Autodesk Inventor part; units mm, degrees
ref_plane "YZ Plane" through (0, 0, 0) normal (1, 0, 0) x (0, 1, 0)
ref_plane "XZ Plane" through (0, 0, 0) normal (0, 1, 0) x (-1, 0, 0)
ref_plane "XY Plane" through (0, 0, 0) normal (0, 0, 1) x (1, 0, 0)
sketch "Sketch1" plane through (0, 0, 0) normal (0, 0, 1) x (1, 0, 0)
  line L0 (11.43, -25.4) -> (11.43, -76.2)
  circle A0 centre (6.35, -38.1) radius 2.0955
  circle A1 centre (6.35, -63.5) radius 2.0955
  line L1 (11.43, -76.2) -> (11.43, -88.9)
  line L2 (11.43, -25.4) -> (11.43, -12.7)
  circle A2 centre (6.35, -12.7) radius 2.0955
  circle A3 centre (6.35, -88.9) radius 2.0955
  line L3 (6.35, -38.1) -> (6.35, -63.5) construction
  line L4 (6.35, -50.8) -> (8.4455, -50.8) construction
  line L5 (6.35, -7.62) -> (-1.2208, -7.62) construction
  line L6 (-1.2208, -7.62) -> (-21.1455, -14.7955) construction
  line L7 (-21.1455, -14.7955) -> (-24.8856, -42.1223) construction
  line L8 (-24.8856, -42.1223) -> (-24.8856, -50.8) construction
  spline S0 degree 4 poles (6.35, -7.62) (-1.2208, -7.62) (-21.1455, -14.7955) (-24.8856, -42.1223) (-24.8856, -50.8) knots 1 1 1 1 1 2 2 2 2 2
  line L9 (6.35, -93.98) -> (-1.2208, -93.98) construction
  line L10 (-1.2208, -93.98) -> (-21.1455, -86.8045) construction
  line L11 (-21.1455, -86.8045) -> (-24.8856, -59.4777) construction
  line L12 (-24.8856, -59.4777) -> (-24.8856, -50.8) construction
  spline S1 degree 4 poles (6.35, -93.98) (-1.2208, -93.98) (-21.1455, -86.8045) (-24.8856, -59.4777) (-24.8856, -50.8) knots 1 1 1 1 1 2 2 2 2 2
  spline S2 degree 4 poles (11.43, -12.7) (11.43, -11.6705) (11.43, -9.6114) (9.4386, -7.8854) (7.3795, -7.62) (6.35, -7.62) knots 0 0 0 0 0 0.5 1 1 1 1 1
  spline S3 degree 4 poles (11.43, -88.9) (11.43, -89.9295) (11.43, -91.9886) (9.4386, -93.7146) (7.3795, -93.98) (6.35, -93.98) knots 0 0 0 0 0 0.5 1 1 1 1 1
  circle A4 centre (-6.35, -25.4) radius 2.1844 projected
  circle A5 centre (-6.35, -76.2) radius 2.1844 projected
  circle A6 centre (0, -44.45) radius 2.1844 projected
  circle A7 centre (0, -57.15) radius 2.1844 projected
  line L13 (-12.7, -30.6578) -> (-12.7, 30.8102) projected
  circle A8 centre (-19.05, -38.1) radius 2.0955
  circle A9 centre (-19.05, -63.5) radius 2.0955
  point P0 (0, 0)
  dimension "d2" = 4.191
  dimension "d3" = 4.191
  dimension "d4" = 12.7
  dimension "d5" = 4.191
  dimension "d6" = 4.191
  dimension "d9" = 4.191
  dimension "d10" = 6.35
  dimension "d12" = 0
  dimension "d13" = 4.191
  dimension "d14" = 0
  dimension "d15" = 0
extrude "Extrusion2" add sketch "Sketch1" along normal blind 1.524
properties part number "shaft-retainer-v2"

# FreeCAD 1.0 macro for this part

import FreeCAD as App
import Part
import Sketcher
Q = App.Units.Quantity

doc = App.newDocument("Part")
params = doc.addObject("Spreadsheet::Sheet", "Params")
for row, (alias, value) in enumerate([
    ("sketch1_diameter", "0.165 in"),
    ("sketch1_diameter2", "0.172 in"),
    ("pad1_length", "0.06 in"),
], start=1):
    params.set(f"A{row}", alias)
    params.set(f"B{row}", "=" + value)
    params.setAlias(f"B{row}", alias)

body = doc.addObject("PartDesign::Body", "Body")

# Sketch on XY plane
sketch1 = body.newObject("Sketcher::SketchObject", "Sketch")
sketch1.AttachmentSupport = (doc.getObject("XY_Plane"), [""])
sketch1.MapMode = "FlatFace"
sketch1.addGeometry(Part.LineSegment(App.Vector(11.43, -88.9, 0), App.Vector(11.43, -12.7, 0)), False)
sketch1.addGeometry(Part.BSplineCurve([App.Vector(11.43, -12.7, 0), App.Vector(11.43, -11.6705, 0), App.Vector(11.43, -9.6114, 0), App.Vector(9.4386, -7.8854, 0), App.Vector(7.3795, -7.62, 0), App.Vector(6.35, -7.62, 0)], [5, 1, 5], [0, 0.5, 1], False, 4, [1, 1, 1, 1, 1, 1], False), False)
sketch1.addGeometry(Part.BSplineCurve([App.Vector(6.35, -7.62, 0), App.Vector(3.09495, -7.62, 0), App.Vector(-2.443782, -8.946429, 0), App.Vector(-7.998012, -12.630578, 0), App.Vector(-12.7, -17.934473, 0)], [5, 5], [1, 1.429947928], False, 4, [1, 1, 1, 1, 1], False), False)
sketch1.addGeometry(Part.BSplineCurve([App.Vector(-12.7, -17.934473, 0), App.Vector(-18.934192, -24.96671, 0), App.Vector(-23.670219, -34.846319, 0), App.Vector(-24.8856, -45.853259, 0), App.Vector(-24.8856, -50.8, 0)], [5, 5], [1.429947928, 2], False, 4, [1, 1, 1, 1, 1], False), False)
sketch1.addGeometry(Part.BSplineCurve([App.Vector(6.35, -93.98, 0), App.Vector(-1.2208, -93.98, 0), App.Vector(-21.1455, -86.8045, 0), App.Vector(-24.8856, -59.4777, 0), App.Vector(-24.8856, -50.8, 0)], [5, 5], [1, 2], False, 4, [1, 1, 1, 1, 1], False), False)
sketch1.addGeometry(Part.BSplineCurve([App.Vector(11.43, -88.9, 0), App.Vector(11.43, -89.9295, 0), App.Vector(11.43, -91.9886, 0), App.Vector(9.4386, -93.7146, 0), App.Vector(7.3795, -93.98, 0), App.Vector(6.35, -93.98, 0)], [5, 1, 5], [0, 0.5, 1], False, 4, [1, 1, 1, 1, 1, 1], False), False)
sketch1.addGeometry(Part.Circle(App.Vector(-19.05, -63.5, 0), App.Vector(0, 0, 1), 2.0955), False)
sketch1.addGeometry(Part.Circle(App.Vector(-6.35, -76.2, 0), App.Vector(0, 0, 1), 2.1844), False)
sketch1.addGeometry(Part.Circle(App.Vector(6.35, -88.9, 0), App.Vector(0, 0, 1), 2.0955), False)
sketch1.addGeometry(Part.Circle(App.Vector(0, -57.15, 0), App.Vector(0, 0, 1), 2.1844), False)
sketch1.addGeometry(Part.Circle(App.Vector(6.35, -63.5, 0), App.Vector(0, 0, 1), 2.0955), False)
sketch1.addGeometry(Part.Circle(App.Vector(-19.05, -38.1, 0), App.Vector(0, 0, 1), 2.0955), False)
sketch1.addGeometry(Part.Circle(App.Vector(0, -44.45, 0), App.Vector(0, 0, 1), 2.1844), False)
sketch1.addGeometry(Part.Circle(App.Vector(6.35, -38.1, 0), App.Vector(0, 0, 1), 2.0955), False)
sketch1.addGeometry(Part.Circle(App.Vector(-6.35, -25.4, 0), App.Vector(0, 0, 1), 2.1844), False)
sketch1.addGeometry(Part.Circle(App.Vector(6.35, -12.7, 0), App.Vector(0, 0, 1), 2.0955), False)
sketch1.addConstraint(Sketcher.Constraint("Block", 1))
sketch1.addConstraint(Sketcher.Constraint("Block", 2))
sketch1.addConstraint(Sketcher.Constraint("Block", 3))
sketch1.addConstraint(Sketcher.Constraint("Block", 4))
sketch1.addConstraint(Sketcher.Constraint("Block", 5))
sketch1.addConstraint(Sketcher.Constraint("Coincident", 0, 2, 1, 1))
sketch1.addConstraint(Sketcher.Constraint("Coincident", 5, 1, 0, 1))
sketch1.addConstraint(Sketcher.Constraint("Equal", 6, 8))
sketch1.addConstraint(Sketcher.Constraint("Equal", 7, 9))
sketch1.addConstraint(Sketcher.Constraint("Equal", 8, 10))
sketch1.addConstraint(Sketcher.Constraint("Equal", 10, 11))
sketch1.addConstraint(Sketcher.Constraint("Equal", 9, 12))
sketch1.addConstraint(Sketcher.Constraint("Equal", 11, 13))
sketch1.addConstraint(Sketcher.Constraint("Equal", 12, 14))
sketch1.addConstraint(Sketcher.Constraint("Equal", 13, 15))
sketch1.addConstraint(Sketcher.Constraint("PointOnObject", 9, 3, -2))
sketch1.addConstraint(Sketcher.Constraint("PointOnObject", 12, 3, -2))
sketch1.addConstraint(Sketcher.Constraint("Horizontal", 6, 3, 10, 3))
sketch1.addConstraint(Sketcher.Constraint("Horizontal", 11, 3, 13, 3))
sketch1.addConstraint(Sketcher.Constraint("Horizontal", 15, 3, 0, 2))
sketch1.addConstraint(Sketcher.Constraint("Vertical", 8, 3, 10, 3))
sketch1.addConstraint(Sketcher.Constraint("Vertical", 6, 3, 11, 3))
sketch1.addConstraint(Sketcher.Constraint("Vertical", 10, 3, 13, 3))
sketch1.addConstraint(Sketcher.Constraint("Vertical", 7, 3, 14, 3))
sketch1.addConstraint(Sketcher.Constraint("Vertical", 13, 3, 15, 3))
sketch1.addConstraint(Sketcher.Constraint("Diameter", 6, Q("0.165 in")))
sketch1.addConstraint(Sketcher.Constraint("DistanceX", 6, 3, 7, 3, Q("0.5 in")))
sketch1.addConstraint(Sketcher.Constraint("DistanceY", 7, 3, 6, 3, Q("0.5 in")))
sketch1.addConstraint(Sketcher.Constraint("DistanceX", 7, 3, 8, 3, Q("0.5 in")))
sketch1.addConstraint(Sketcher.Constraint("DistanceY", 8, 3, 7, 3, Q("0.5 in")))
sketch1.addConstraint(Sketcher.Constraint("DistanceY", 9, 3, 12, 3, Q("0.5 in")))
sketch1.addConstraint(Sketcher.Constraint("DistanceY", 13, 3, 14, 3, Q("0.5 in")))
sketch1.addConstraint(Sketcher.Constraint("DistanceY", 14, 3, 15, 3, Q("0.5 in")))
sketch1.addConstraint(Sketcher.Constraint("DistanceX", 7, 3, -1, 1, Q("0.25 in")))
sketch1.addConstraint(Sketcher.Constraint("DistanceY", 6, 3, 9, 3, Q("0.25 in")))
sketch1.addConstraint(Sketcher.Constraint("DistanceY", 12, 3, 11, 3, Q("0.25 in")))
sketch1.addConstraint(Sketcher.Constraint("Diameter", 7, Q("0.172 in")))
sketch1.setExpression("Constraints[25]", "Params.sketch1_diameter")
sketch1.setExpression("Constraints[36]", "Params.sketch1_diameter2")
pad1 = body.newObject("PartDesign::Pad", "Pad")
pad1.Profile = sketch1
pad1.setExpression("Length", "Params.pad1_length")

doc.recompute()
